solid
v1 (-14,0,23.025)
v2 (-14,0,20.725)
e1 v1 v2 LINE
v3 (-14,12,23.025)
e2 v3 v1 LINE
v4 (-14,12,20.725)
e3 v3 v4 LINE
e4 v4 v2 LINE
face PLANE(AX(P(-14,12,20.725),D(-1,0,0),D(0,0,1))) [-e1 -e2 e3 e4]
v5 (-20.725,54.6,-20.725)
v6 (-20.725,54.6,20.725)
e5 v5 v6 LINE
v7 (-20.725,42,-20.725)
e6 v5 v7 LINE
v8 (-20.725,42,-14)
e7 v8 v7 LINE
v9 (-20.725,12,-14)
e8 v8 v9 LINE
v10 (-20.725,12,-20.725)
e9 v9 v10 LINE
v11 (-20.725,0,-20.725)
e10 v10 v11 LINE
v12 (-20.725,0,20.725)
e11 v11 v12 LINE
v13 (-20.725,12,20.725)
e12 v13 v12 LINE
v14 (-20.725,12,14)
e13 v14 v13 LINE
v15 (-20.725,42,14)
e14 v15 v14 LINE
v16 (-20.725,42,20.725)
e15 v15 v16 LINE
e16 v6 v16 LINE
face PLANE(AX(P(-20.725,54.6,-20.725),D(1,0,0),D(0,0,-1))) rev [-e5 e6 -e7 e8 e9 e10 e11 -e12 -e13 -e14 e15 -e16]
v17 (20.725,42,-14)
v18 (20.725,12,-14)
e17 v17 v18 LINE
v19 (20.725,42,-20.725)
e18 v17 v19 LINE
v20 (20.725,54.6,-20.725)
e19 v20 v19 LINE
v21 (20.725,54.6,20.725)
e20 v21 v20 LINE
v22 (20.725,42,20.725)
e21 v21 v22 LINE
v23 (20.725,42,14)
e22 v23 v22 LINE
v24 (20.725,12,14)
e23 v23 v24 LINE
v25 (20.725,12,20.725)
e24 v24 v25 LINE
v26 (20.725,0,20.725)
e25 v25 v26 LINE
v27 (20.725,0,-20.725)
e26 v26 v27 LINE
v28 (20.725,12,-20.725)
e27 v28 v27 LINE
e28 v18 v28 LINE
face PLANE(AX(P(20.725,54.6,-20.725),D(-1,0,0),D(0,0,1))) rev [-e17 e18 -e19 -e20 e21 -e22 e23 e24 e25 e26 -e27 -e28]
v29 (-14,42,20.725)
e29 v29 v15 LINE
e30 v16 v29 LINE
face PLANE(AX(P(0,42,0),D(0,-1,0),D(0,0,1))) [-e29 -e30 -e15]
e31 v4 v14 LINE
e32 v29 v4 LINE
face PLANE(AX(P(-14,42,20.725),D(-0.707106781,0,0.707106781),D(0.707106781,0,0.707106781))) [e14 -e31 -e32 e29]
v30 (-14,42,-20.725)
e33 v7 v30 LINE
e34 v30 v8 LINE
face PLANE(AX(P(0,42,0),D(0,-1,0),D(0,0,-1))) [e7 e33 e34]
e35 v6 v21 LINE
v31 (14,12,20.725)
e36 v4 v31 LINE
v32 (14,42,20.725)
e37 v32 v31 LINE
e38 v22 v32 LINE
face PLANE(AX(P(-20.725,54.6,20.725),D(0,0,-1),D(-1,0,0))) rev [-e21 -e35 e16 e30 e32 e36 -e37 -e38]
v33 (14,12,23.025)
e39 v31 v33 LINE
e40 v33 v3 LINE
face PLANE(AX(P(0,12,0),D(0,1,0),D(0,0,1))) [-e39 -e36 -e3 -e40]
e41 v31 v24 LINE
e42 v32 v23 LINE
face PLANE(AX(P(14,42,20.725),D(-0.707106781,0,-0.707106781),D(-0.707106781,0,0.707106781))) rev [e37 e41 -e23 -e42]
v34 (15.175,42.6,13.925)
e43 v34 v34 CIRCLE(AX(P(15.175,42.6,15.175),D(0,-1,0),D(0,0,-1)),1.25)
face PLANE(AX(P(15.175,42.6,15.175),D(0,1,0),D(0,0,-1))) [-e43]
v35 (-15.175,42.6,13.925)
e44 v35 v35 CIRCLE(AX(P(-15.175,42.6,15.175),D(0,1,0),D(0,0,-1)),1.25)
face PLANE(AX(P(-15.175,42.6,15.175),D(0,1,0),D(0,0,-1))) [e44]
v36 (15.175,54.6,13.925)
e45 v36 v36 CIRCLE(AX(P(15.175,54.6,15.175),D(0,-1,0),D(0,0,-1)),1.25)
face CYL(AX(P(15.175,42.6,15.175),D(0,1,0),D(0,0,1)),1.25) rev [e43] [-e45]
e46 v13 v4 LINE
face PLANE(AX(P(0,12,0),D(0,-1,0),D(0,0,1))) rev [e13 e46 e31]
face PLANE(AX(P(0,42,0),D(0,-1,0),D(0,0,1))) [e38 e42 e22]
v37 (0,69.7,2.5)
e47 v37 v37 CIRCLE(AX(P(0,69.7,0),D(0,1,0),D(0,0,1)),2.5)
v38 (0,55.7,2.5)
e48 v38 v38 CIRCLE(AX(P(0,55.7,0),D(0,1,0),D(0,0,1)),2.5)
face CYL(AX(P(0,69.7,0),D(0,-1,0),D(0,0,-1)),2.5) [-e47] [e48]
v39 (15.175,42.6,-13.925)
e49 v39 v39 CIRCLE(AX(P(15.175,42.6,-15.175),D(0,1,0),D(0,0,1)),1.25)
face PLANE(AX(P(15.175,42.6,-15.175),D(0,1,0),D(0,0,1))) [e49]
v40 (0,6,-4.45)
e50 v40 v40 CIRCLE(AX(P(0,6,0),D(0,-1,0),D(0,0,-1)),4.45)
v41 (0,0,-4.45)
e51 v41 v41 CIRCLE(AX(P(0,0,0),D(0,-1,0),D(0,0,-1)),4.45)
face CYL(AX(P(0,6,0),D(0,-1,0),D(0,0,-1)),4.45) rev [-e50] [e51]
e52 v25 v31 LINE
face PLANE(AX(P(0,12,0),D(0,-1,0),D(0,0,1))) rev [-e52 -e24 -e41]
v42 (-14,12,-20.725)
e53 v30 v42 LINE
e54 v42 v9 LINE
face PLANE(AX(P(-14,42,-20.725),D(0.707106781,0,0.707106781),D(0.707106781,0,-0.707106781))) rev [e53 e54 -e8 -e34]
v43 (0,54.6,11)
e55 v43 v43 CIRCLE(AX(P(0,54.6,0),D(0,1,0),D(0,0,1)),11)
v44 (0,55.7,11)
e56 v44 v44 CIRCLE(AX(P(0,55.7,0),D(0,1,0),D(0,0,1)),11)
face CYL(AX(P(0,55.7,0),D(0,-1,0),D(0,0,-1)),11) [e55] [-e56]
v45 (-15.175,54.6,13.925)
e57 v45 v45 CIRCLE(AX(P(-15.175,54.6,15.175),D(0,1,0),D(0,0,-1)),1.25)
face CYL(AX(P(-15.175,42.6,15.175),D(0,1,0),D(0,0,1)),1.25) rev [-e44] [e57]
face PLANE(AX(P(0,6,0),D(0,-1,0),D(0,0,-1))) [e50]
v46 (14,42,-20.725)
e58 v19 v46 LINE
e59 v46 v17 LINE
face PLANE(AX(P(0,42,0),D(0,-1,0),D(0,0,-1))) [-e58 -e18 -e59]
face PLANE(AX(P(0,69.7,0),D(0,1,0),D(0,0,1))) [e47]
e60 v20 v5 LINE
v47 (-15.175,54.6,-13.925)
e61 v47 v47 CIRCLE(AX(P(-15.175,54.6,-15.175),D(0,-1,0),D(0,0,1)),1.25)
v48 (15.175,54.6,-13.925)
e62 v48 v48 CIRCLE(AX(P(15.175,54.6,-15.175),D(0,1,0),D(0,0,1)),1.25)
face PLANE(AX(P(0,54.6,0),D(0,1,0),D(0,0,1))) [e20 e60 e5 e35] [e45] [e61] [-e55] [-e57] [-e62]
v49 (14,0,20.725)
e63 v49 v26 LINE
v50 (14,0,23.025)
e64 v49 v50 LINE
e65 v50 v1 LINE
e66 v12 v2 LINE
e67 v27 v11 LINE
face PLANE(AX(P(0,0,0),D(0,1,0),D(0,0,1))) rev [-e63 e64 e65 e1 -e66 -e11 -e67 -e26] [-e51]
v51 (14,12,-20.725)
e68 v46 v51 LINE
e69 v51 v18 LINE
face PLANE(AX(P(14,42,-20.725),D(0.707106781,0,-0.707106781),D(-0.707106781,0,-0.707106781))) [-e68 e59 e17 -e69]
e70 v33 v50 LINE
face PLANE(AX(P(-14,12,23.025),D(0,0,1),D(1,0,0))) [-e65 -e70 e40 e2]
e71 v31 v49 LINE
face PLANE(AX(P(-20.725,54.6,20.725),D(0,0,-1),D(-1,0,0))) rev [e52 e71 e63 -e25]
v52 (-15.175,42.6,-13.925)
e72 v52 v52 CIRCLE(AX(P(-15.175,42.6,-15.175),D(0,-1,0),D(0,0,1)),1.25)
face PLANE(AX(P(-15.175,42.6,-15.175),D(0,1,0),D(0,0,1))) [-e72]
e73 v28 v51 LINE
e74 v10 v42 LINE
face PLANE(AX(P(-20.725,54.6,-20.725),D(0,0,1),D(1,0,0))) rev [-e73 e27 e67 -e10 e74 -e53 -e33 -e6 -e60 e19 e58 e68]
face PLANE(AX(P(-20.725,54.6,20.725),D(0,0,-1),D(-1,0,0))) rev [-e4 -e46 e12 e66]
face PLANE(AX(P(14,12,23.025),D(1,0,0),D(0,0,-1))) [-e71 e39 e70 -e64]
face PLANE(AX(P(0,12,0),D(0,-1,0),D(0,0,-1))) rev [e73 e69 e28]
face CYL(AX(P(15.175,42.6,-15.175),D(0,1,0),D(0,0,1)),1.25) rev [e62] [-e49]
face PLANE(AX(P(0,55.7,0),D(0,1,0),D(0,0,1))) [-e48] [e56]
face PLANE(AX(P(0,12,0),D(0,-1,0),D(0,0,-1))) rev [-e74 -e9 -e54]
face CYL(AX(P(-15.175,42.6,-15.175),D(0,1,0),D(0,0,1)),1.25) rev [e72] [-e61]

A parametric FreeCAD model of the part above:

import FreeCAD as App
import Part
import Sketcher
Q = App.Units.Quantity

doc = App.newDocument("Part")
body = doc.addObject("PartDesign::Body", "Body")

# Sketch on XZ plane
sketch1 = body.newObject("Sketcher::SketchObject", "Sketch")
sketch1.AttachmentSupport = (doc.getObject("XZ_Plane"), [""])
sketch1.MapMode = "FlatFace"
sketch1.addGeometry([
    Part.LineSegment(App.Vector(-21, -21, 0), App.Vector(-21, 21, 0)),
    Part.LineSegment(App.Vector(-21, 21, 0), App.Vector(21, 21, 0)),
    Part.LineSegment(App.Vector(21, 21, 0), App.Vector(21, -21, 0)),
    Part.LineSegment(App.Vector(21, -21, 0), App.Vector(-21, -21, 0)),
], False)
sketch1.addConstraint([
    Sketcher.Constraint("Coincident", 0, 2, 1, 1),
    Sketcher.Constraint("Coincident", 1, 2, 2, 1),
    Sketcher.Constraint("Coincident", 2, 2, 3, 1),
    Sketcher.Constraint("Coincident", 3, 2, 0, 1),
    Sketcher.Constraint("Vertical", 0),
    Sketcher.Constraint("Horizontal", 1),
    Sketcher.Constraint("Vertical", 2),
    Sketcher.Constraint("Horizontal", 3),
    Sketcher.Constraint("Symmetric", 0, 2, 2, 2, -1, 1),
    Sketcher.Constraint("Equal", 3, 0),
    Sketcher.Constraint("DistanceX", 1, 1, 1, 2, Q("41.45 mm")),
])
pad1 = body.newObject("PartDesign::Pad", "Pad")
pad1.Profile = sketch1
pad1.Length = 54.6
pad1.Reversed = True

# Sketch on XZ plane
sketch2 = body.newObject("Sketcher::SketchObject", "Sketch001")
sketch2.AttachmentSupport = (doc.getObject("XZ_Plane"), [""])
sketch2.MapMode = "FlatFace"
sketch2.AttachmentOffset = App.Placement(App.Vector(0, 0, -54.6), App.Rotation())
sketch2.addGeometry(Part.Circle(App.Vector(0, 0, 0), App.Vector(0, 0, 1), 11), False)
sketch2.addConstraint([
    Sketcher.Constraint("Coincident", 0, 3, -1, 1),
    Sketcher.Constraint("Diameter", 0, Q("22 mm")),
])
pad2 = body.newObject("PartDesign::Pad", "Pad001")
pad2.Profile = sketch2
pad2.Length = 1.1
pad2.Reversed = True

# Sketch on XZ plane
sketch3 = body.newObject("Sketcher::SketchObject", "Sketch002")
sketch3.AttachmentSupport = (doc.getObject("XZ_Plane"), [""])
sketch3.MapMode = "FlatFace"
sketch3.AttachmentOffset = App.Placement(App.Vector(0, 0, -55.7), App.Rotation())
sketch3.addGeometry(Part.Circle(App.Vector(0, 0, 0), App.Vector(0, 0, 1), 2.5), False)
sketch3.addConstraint([
    Sketcher.Constraint("Coincident", 0, 3, -1, 1),
    Sketcher.Constraint("Diameter", 0, Q("5 mm")),
])
pad3 = body.newObject("PartDesign::Pad", "Pad002")
pad3.Profile = sketch3
pad3.Length = 14
pad3.Reversed = True

# Sketch on XZ plane
sketch4 = body.newObject("Sketcher::SketchObject", "Sketch003")
sketch4.AttachmentSupport = (doc.getObject("XZ_Plane"), [""])
sketch4.MapMode = "FlatFace"
sketch4.addGeometry([
    Part.LineSegment(App.Vector(14, 20.7, 0), App.Vector(14, 23, 0)),
    Part.LineSegment(App.Vector(14, 23, 0), App.Vector(-14, 23, 0)),
    Part.LineSegment(App.Vector(-14, 23, 0), App.Vector(-14, 20.7, 0)),
    Part.LineSegment(App.Vector(-14, 20.7, 0), App.Vector(14, 20.7, 0)),
], False)
sketch4.addConstraint([
    Sketcher.Constraint("Coincident", 0, 2, 1, 1),
    Sketcher.Constraint("Coincident", 1, 2, 2, 1),
    Sketcher.Constraint("Coincident", 2, 2, 3, 1),
    Sketcher.Constraint("Coincident", 3, 2, 0, 1),
    Sketcher.Constraint("Vertical", 0),
    Sketcher.Constraint("Horizontal", 1),
    Sketcher.Constraint("Vertical", 2),
    Sketcher.Constraint("Horizontal", 3),
    Sketcher.Constraint("DistanceX", 1, 2, 1, 1, Q("28 mm")),
    Sketcher.Constraint("DistanceY", 0, 1, 0, 2, Q("2.3 mm")),
    Sketcher.Constraint("DistanceX", -1, 1, 0, 2, Q("14 mm")),
    Sketcher.Constraint("DistanceY", -1, 1, 0, 2, Q("23.025 mm")),
])
pad4 = body.newObject("PartDesign::Pad", "Pad003")
pad4.Profile = sketch4
pad4.Length = 12
pad4.Reversed = True

# Sketch on XZ plane
sketch5 = body.newObject("Sketcher::SketchObject", "Sketch004")
sketch5.AttachmentSupport = (doc.getObject("XZ_Plane"), [""])
sketch5.MapMode = "FlatFace"
sketch5.AttachmentOffset = App.Placement(App.Vector(0, 0, -54.6), App.Rotation())
sketch5.addGeometry(Part.Circle(App.Vector(15.2, -15.2, 0), App.Vector(0, 0, 1), 1.2), False)
sketch5.addConstraint([
    Sketcher.Constraint("Diameter", 0, Q("2.5 mm")),
    Sketcher.Constraint("DistanceX", -1, 1, 0, 3, Q("15.175 mm")),
    Sketcher.Constraint("DistanceY", 0, 3, -1, 1, Q("15.175 mm")),
])
pocket1 = body.newObject("PartDesign::Pocket", "Pocket")
pocket1.Profile = sketch5
pocket1.Length = 12
pocket1.Reversed = True
doc.recompute()

mirrored = body.newObject("PartDesign::Mirrored", "Mirrored")
mirrored.Originals = [pocket1]
mirrored.MirrorPlane = (doc.getObject("XY_Plane"), [""])
body.Tip = mirrored
doc.recompute()

mirrored2 = body.newObject("PartDesign::Mirrored", "Mirrored001")
mirrored2.Originals = [pocket1]
mirrored2.MirrorPlane = (doc.getObject("YZ_Plane"), [""])
body.Tip = mirrored2

# Sketch on XZ plane
sketch6 = body.newObject("Sketcher::SketchObject", "Sketch005")
sketch6.AttachmentSupport = (doc.getObject("XZ_Plane"), [""])
sketch6.MapMode = "FlatFace"
sketch6.AttachmentOffset = App.Placement(App.Vector(0, 0, -54.6), App.Rotation())
sketch6.addGeometry(Part.Circle(App.Vector(-15.2, 15.2, 0), App.Vector(0, 0, 1), 1.2), False)
sketch6.addConstraint([
    Sketcher.Constraint("Diameter", 0, Q("2.5 mm")),
    Sketcher.Constraint("DistanceX", 0, 3, -1, 1, Q("15.175 mm")),
    Sketcher.Constraint("DistanceY", -1, 1, 0, 3, Q("15.175 mm")),
])
pocket2 = body.newObject("PartDesign::Pocket", "Pocket001")
pocket2.Profile = sketch6
pocket2.Length = 12
pocket2.Reversed = True

# Sketch on XZ plane
sketch7 = body.newObject("Sketcher::SketchObject", "Sketch006")
sketch7.AttachmentSupport = (doc.getObject("XZ_Plane"), [""])
sketch7.MapMode = "FlatFace"
sketch7.AttachmentOffset = App.Placement(App.Vector(0, 0, -12), App.Rotation())
sketch7.addGeometry([
    Part.LineSegment(App.Vector(-21, -21, 0), App.Vector(-21, -14, 0)),
    Part.LineSegment(App.Vector(-21, -14, 0), App.Vector(-14, -21, 0)),
    Part.LineSegment(App.Vector(-14, -21, 0), App.Vector(-21, -21, 0)),
], False)
sketch7.addConstraint([
    Sketcher.Constraint("Coincident", 0, 2, 1, 1),
    Sketcher.Constraint("Coincident", 1, 2, 2, 1),
    Sketcher.Constraint("Coincident", 2, 2, 0, 1),
    Sketcher.Constraint("Vertical", 0),
    Sketcher.Constraint("Horizontal", 2),
    Sketcher.Constraint("Equal", 2, 0),
    Sketcher.Constraint("DistanceY", 0, 2, -1, 1, Q("14 mm")),
    Sketcher.Constraint("DistanceX", 1, 2, -1, 1, Q("14 mm")),
    Sketcher.Constraint("DistanceX", 2, 2, 2, 1, Q("6.725 mm")),
])
pocket3 = body.newObject("PartDesign::Pocket", "Pocket002")
pocket3.Profile = sketch7
pocket3.Length = 30
doc.recompute()

mirrored3 = body.newObject("PartDesign::Mirrored", "Mirrored002")
mirrored3.Originals = [pocket3]
mirrored3.MirrorPlane = (doc.getObject("YZ_Plane"), [""])
body.Tip = mirrored3
doc.recompute()

mirrored4 = body.newObject("PartDesign::Mirrored", "Mirrored003")
mirrored4.Originals = [pocket3]
mirrored4.MirrorPlane = (doc.getObject("XY_Plane"), [""])
body.Tip = mirrored4

# Sketch on XZ plane
sketch8 = body.newObject("Sketcher::SketchObject", "Sketch007")
sketch8.AttachmentSupport = (doc.getObject("XZ_Plane"), [""])
sketch8.MapMode = "FlatFace"
sketch8.AttachmentOffset = App.Placement(App.Vector(0, 0, -12), App.Rotation())
sketch8.addGeometry([
    Part.LineSegment(App.Vector(21, 21, 0), App.Vector(21, 14, 0)),
    Part.LineSegment(App.Vector(21, 14, 0), App.Vector(14, 21, 0)),
    Part.LineSegment(App.Vector(14, 21, 0), App.Vector(21, 21, 0)),
], False)
sketch8.addConstraint([
    Sketcher.Constraint("Coincident", 0, 2, 1, 1),
    Sketcher.Constraint("Coincident", 1, 2, 2, 1),
    Sketcher.Constraint("Coincident", 2, 2, 0, 1),
    Sketcher.Constraint("Vertical", 0),
    Sketcher.Constraint("Horizontal", 2),
    Sketcher.Constraint("Equal", 2, 0),
    Sketcher.Constraint("DistanceY", -1, 1, 0, 2, Q("14 mm")),
    Sketcher.Constraint("DistanceX", -1, 1, 1, 2, Q("14 mm")),
    Sketcher.Constraint("DistanceX", 2, 1, 2, 2, Q("6.725 mm")),
])
pocket4 = body.newObject("PartDesign::Pocket", "Pocket003")
pocket4.Profile = sketch8
pocket4.Length = 30

# Sketch on XZ plane
sketch9 = body.newObject("Sketcher::SketchObject", "Sketch008")
sketch9.AttachmentSupport = (doc.getObject("XZ_Plane"), [""])
sketch9.MapMode = "FlatFace"
sketch9.addGeometry(Part.Circle(App.Vector(0, 0, 0), App.Vector(0, 0, 1), 4.5), False)
sketch9.addConstraint([
    Sketcher.Constraint("Coincident", 0, 3, -1, 1),
    Sketcher.Constraint("Diameter", 0, Q("8.9 mm")),
])
pocket5 = body.newObject("PartDesign::Pocket", "Pocket004")
pocket5.Profile = sketch9
pocket5.Length = 6

doc.recompute()
